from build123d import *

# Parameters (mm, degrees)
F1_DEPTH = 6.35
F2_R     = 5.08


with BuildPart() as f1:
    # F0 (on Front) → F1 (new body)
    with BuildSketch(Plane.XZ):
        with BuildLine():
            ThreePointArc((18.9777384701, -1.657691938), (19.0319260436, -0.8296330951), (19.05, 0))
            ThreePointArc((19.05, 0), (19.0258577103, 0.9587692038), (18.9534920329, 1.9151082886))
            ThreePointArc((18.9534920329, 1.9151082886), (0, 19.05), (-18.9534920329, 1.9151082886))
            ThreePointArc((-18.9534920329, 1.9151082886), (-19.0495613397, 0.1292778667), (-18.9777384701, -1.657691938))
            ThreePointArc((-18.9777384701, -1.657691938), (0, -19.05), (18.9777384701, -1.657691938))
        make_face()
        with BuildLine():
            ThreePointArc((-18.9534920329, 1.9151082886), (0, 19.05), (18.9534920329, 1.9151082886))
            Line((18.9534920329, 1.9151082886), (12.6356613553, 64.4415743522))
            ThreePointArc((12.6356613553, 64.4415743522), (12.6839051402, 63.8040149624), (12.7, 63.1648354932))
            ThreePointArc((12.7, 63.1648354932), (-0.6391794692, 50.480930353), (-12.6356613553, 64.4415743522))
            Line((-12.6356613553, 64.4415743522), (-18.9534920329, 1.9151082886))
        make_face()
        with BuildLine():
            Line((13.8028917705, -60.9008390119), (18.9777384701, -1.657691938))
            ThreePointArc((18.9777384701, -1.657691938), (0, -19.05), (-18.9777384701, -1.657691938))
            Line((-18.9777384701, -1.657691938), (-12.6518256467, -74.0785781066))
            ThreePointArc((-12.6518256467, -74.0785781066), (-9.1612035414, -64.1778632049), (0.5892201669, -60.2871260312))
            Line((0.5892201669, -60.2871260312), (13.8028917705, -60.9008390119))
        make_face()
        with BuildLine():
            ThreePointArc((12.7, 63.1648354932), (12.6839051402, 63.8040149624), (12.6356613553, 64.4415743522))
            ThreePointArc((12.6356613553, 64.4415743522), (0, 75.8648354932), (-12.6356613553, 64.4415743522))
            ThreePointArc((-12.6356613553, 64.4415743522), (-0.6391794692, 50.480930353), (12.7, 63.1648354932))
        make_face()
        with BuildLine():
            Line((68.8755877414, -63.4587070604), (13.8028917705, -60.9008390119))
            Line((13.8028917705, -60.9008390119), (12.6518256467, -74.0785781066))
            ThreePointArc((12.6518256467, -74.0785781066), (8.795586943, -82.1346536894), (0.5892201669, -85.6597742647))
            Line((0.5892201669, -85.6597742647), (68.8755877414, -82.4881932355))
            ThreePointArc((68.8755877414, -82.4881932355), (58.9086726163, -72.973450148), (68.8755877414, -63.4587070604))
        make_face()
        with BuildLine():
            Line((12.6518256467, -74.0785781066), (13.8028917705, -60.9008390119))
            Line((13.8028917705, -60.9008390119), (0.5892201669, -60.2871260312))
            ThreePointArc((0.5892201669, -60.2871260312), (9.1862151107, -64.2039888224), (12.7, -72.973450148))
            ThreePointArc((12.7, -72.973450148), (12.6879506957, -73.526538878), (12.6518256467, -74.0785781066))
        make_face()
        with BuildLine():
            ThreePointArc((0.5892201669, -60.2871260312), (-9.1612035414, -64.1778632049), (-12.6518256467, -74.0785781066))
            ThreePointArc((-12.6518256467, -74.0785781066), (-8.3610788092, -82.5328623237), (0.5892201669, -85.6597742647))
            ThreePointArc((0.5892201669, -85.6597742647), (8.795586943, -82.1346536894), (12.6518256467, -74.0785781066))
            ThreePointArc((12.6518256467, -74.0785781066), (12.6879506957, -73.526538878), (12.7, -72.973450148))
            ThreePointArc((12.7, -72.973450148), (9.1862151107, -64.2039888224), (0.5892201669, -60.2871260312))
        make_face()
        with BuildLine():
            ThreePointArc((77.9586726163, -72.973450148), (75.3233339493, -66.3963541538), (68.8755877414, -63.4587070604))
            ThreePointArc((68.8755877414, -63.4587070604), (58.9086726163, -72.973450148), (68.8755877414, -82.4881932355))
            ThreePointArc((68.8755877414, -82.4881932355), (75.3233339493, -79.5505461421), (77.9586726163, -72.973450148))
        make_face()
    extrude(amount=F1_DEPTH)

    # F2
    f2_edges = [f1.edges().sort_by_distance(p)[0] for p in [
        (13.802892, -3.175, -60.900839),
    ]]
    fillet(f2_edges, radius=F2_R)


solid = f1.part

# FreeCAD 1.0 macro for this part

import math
import FreeCAD as App
import Part
import Sketcher
Q = App.Units.Quantity


def edges_at(feature, points):
    """Names of the edges that pass closest to the given points."""
    edges = feature.Shape.Edges
    near = lambda p: min(range(len(edges)), key=lambda i: edges[i].distToShape(Part.Vertex(*p))[0])
    return sorted({f"Edge{near(p) + 1}" for p in points})

doc = App.newDocument("Part")
body = doc.addObject("PartDesign::Body", "Body")

sketch1 = body.newObject("Sketcher::SketchObject", "Sketch")
sketch1.AttachmentSupport = (doc.getObject("XZ_Plane"), [""])
sketch1.MapMode = "FlatFace"
sketch1.addGeometry([
    Part.ArcOfCircle(Part.Circle(App.Vector(0, 0, 0), App.Vector(0, 0, 1), 19), math.radians(-4.99), math.radians(0)),
    Part.ArcOfCircle(Part.Circle(App.Vector(0, 0, 0), App.Vector(0, 0, 1), 19.1), math.radians(0), math.radians(5.77)),
    Part.LineSegment(App.Vector(19, 1.9, 0), App.Vector(12.6, 64.4, 0)),
    Part.ArcOfCircle(Part.Circle(App.Vector(0, 63.2, 0), App.Vector(0, 0, 1), 12.7), math.radians(6), math.radians(174)),
    Part.LineSegment(App.Vector(-12.6, 64.4, 0), App.Vector(-19, 1.9, 0)),
    Part.ArcOfCircle(Part.Circle(App.Vector(0, 0, 0), App.Vector(0, 0, 1), 19), math.radians(174.23), math.radians(184.99)),
    Part.LineSegment(App.Vector(-19, -1.7, 0), App.Vector(-12.7, -74.1, 0)),
    Part.ArcOfCircle(Part.Circle(App.Vector(0, -73, 0), App.Vector(0, 0, 1), 12.7), math.radians(-175), math.radians(-87)),
    Part.LineSegment(App.Vector(0.6, -85.7, 0), App.Vector(68.9, -82.5, 0)),
    Part.ArcOfCircle(Part.Circle(App.Vector(68.4, -73, 0), App.Vector(0, 0, 1), 9.5), math.radians(-87), math.radians(0)),
    Part.ArcOfCircle(Part.Circle(App.Vector(68.4, -73, 0), App.Vector(0, 0, 1), 9.5), math.radians(0), math.radians(87)),
    Part.LineSegment(App.Vector(68.9, -63.5, 0), App.Vector(13.8, -60.9, 0)),
    Part.LineSegment(App.Vector(13.8, -60.9, 0), App.Vector(19, -1.7, 0)),
], False)
sketch1.addConstraint([
    Sketcher.Constraint("Tangent", 0, 2, 1, 1),
    Sketcher.Constraint("Tangent", 1, 2, 2, 1),
    Sketcher.Constraint("Tangent", 2, 2, 3, 1),
    Sketcher.Constraint("Tangent", 3, 2, 4, 1),
    Sketcher.Constraint("Tangent", 4, 2, 5, 1),
    Sketcher.Constraint("Tangent", 5, 2, 6, 1),
    Sketcher.Constraint("Tangent", 6, 2, 7, 1),
    Sketcher.Constraint("Tangent", 7, 2, 8, 1),
    Sketcher.Constraint("Tangent", 8, 2, 9, 1),
    Sketcher.Constraint("Tangent", 9, 2, 10, 1),
    Sketcher.Constraint("Tangent", 10, 2, 11, 1),
    Sketcher.Constraint("Coincident", 11, 2, 12, 1),
    Sketcher.Constraint("Tangent", 12, 2, 0, 1),
    Sketcher.Constraint("Coincident", 0, 3, -1, 1),
    Sketcher.Constraint("Coincident", 5, 3, -1, 1),
    Sketcher.Constraint("Equal", 0, 1),
    Sketcher.Constraint("Equal", 1, 5),
    Sketcher.Constraint("Equal", 3, 7),
    Sketcher.Constraint("Equal", 9, 10),
    Sketcher.Constraint("PointOnObject", 3, 3, -2),
    Sketcher.Constraint("PointOnObject", 7, 3, -2),
    Sketcher.Constraint("PointOnObject", 0, 2, -1),
    Sketcher.Constraint("Horizontal", 7, 3, 9, 3),
    Sketcher.Constraint("Horizontal", 10, 3, 9, 2),
    Sketcher.Constraint("Horizontal", 5, 2, 12, 2),
    Sketcher.Constraint("Vertical", 8, 2, 10, 2),
    Sketcher.Constraint("Radius", 3, Q("0.5 in")),
    Sketcher.Constraint("Radius", 0, Q("0.75 in")),
    Sketcher.Constraint("Radius", 9, Q("0.375 in")),
    Sketcher.Constraint("Distance", 2, Q("62.84484 mm")),
    Sketcher.Constraint("Distance", 8, Q("68.35998 mm")),
    Sketcher.Constraint("DistanceY", 7, 3, -1, 1, Q("72.97345 mm")),
])
pad1 = body.newObject("PartDesign::Pad", "Pad")
pad1.Profile = sketch1
pad1.Length = Q("0.25 in")
doc.recompute()

fillet = body.newObject("PartDesign::Fillet", "Fillet")
fillet.Base = (pad1, edges_at(pad1, [(13.803, -3.175, -60.901)]))
fillet.Radius = Q("0.2 in")

doc.recompute()
